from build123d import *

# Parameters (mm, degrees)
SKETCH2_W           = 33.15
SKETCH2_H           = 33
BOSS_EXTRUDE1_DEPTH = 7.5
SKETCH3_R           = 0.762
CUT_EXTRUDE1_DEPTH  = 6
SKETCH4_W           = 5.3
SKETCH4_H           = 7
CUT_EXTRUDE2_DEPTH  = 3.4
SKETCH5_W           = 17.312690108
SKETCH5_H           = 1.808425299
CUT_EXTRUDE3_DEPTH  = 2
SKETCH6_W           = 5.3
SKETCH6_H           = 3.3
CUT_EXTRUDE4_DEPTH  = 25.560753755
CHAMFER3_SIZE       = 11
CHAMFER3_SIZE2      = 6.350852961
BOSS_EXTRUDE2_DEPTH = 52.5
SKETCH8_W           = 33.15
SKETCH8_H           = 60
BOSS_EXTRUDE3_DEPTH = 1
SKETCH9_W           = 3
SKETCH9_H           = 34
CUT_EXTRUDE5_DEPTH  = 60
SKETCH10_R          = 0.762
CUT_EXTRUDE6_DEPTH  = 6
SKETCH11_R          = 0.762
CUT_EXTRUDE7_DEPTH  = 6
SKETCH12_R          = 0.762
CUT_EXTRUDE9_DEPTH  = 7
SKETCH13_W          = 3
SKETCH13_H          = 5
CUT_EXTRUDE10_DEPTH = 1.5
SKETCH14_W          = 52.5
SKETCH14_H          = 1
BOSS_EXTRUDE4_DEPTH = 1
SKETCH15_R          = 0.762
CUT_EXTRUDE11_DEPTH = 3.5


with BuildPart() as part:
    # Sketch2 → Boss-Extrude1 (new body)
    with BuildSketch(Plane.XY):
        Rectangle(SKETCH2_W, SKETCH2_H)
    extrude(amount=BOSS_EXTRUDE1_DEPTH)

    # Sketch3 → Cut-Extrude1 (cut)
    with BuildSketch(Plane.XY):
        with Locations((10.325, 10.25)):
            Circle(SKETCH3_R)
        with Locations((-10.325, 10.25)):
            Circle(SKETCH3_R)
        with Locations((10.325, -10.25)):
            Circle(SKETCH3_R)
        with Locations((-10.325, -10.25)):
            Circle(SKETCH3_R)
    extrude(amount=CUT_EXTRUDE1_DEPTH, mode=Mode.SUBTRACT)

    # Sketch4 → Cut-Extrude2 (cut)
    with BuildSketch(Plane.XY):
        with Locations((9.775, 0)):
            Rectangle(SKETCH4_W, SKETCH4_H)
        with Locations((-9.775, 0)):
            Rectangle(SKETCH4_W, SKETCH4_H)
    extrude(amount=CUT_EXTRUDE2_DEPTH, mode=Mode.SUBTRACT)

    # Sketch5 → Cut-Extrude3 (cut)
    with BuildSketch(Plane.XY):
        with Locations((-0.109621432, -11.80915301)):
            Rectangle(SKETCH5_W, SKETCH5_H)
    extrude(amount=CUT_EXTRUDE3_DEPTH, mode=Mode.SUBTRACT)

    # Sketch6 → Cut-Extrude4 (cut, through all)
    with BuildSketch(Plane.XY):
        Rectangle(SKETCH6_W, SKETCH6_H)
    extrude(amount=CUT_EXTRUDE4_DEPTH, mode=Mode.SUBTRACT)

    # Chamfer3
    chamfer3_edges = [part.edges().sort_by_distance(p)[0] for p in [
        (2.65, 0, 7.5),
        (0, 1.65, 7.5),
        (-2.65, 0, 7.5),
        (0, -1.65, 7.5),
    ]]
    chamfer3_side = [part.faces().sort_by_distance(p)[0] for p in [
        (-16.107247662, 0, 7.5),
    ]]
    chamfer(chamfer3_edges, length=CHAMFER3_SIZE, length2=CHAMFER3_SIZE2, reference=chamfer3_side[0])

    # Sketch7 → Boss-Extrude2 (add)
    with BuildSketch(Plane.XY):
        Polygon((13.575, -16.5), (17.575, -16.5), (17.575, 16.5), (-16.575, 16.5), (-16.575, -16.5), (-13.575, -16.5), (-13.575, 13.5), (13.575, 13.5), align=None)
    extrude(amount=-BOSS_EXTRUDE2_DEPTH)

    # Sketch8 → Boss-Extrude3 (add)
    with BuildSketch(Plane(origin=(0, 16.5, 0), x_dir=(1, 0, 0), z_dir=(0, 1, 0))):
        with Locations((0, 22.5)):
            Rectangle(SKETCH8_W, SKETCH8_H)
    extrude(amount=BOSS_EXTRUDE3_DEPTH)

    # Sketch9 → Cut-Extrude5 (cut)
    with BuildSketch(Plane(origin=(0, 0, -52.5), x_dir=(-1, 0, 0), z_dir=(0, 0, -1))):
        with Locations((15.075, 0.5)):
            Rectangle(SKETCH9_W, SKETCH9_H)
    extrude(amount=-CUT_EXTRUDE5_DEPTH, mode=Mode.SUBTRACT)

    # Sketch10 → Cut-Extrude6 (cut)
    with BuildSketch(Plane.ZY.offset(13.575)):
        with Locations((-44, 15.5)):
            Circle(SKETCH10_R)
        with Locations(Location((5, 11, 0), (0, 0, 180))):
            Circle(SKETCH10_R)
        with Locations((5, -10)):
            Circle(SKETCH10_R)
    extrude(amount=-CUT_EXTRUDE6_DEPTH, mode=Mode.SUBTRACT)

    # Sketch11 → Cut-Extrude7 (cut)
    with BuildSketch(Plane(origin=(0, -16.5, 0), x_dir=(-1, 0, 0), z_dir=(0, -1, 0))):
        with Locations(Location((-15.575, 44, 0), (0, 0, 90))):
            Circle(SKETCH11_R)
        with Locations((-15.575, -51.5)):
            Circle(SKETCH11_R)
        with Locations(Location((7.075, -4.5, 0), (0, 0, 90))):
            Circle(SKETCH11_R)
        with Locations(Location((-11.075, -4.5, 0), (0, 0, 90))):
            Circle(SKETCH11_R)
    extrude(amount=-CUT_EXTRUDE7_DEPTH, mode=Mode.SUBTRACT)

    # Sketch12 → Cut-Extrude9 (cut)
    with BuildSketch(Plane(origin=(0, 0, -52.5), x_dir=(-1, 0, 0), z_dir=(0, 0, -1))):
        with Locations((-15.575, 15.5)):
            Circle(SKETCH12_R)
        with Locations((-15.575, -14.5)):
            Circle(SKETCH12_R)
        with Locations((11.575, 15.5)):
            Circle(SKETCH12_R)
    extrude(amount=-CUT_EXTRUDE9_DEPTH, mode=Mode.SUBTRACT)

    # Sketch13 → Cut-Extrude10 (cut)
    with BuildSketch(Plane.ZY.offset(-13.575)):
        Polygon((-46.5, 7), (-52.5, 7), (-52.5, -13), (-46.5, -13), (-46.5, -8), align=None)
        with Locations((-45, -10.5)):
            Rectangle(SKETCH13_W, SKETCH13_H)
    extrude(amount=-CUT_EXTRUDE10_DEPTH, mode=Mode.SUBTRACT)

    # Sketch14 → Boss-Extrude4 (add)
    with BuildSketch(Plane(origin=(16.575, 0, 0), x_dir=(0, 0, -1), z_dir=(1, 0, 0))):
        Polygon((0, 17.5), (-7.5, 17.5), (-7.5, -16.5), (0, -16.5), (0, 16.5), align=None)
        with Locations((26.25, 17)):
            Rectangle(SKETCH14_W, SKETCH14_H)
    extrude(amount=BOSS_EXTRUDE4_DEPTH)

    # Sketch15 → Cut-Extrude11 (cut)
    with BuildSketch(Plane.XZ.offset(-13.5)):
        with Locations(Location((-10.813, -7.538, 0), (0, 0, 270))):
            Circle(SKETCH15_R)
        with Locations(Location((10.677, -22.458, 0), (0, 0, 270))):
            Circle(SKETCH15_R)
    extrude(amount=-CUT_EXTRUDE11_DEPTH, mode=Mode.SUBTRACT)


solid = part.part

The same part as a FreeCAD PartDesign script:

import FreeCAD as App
import Part
import Sketcher
from FreeCAD import Vector


def edges_at(feature, points):
    """Names of the edges that pass closest to the given points."""
    edges = feature.Shape.Edges
    near = lambda p: min(range(len(edges)), key=lambda i: edges[i].distToShape(Part.Vertex(*p))[0])
    return sorted({f"Edge{near(p) + 1}" for p in points})


def add_polygon(sketch, points):
    """Adds a closed chain of lines whose ends are joined by coincident constraints."""
    first, n = sketch.GeometryCount, len(points)
    for a, b in zip(points, points[1:] + points[:1]):
        sketch.addGeometry(Part.LineSegment(App.Vector(*a, 0), App.Vector(*b, 0)), False)
    for i in range(n):
        sketch.addConstraint(Sketcher.Constraint("Coincident", first + i, 2, first + (i + 1) % n, 1))

doc = App.newDocument("Part")
params = doc.addObject("Spreadsheet::Sheet", "Params")
for row, (alias, value) in enumerate([
    ("sketch1_height", "33 mm"),
    ("sketch1_width", "33.15 mm"),
    ("pad1_length", "7.5 mm"),
    ("pocket1_length", "6 mm"),
    ("sketch3_height", "7 mm"),
    ("sketch3_width", "5.3 mm"),
    ("pocket2_length", "3.4 mm"),
    ("pocket3_length", "2 mm"),
    ("sketch5_width", "5.3 mm"),
    ("sketch5_height", "3.3 mm"),
    ("chamfer_size", "11 mm"),
    ("chamfer_size2", "6.350853 mm"),
    ("sketch6_width", "4 mm"),
    ("sketch6_width2", "3 mm"),
    ("sketch6_height", "33 mm"),
    ("sketch6_height2", "30 mm"),
    ("sketch6_width3", "34.15 mm"),
    ("pad2_length", "52.5 mm"),
    ("sketch7_height", "60 mm"),
    ("sketch7_width", "33.15 mm"),
    ("pad3_length", "1 mm"),
    ("sketch8_width", "3 mm"),
    ("sketch8_height", "34 mm"),
    ("pocket5_length", "60 mm"),
    ("pocket6_length", "6 mm"),
    ("pocket7_length", "6 mm"),
    ("pocket8_length", "7 mm"),
    ("sketch12_width", "20 mm"),
    ("sketch12_width2", "5 mm"),
    ("sketch12_height", "6 mm"),
    ("sketch12_height2", "9 mm"),
    ("pocket9_length", "1.5 mm"),
    ("sketch13_width", "34 mm"),
    ("sketch13_width2", "33 mm"),
    ("sketch13_height", "60 mm"),
    ("sketch13_height2", "7.5 mm"),
    ("pad4_length", "1 mm"),
    ("pocket10_length", "3.5 mm"),
], start=1):
    params.set(f"A{row}", alias)
    params.set(f"B{row}", "=" + value)
    params.setAlias(f"B{row}", alias)

body = doc.addObject("PartDesign::Body", "Body")

# Sketch on XY plane
sketch1 = doc.addObject("Sketcher::SketchObject", "Sketch")
body.addObject(sketch1)
sketch1.AttachmentSupport = (doc.XY_Plane, [""])
sketch1.MapMode = "FlatFace"
add_polygon(sketch1, [(-17, 16), (-17, -16), (17, -16), (17, 16)])  # lines 0-3
sketch1.addConstraint([
    Sketcher.Constraint("Vertical", 0),
    Sketcher.Constraint("Horizontal", 1),
    Sketcher.Constraint("Vertical", 2),
    Sketcher.Constraint("Horizontal", 3),
    Sketcher.Constraint("Symmetric", 0, 2, 2, 2, -1, 1),
    Sketcher.Constraint("DistanceY", 0, 2, 0, 1, 33.0),
    Sketcher.Constraint("DistanceX", 1, 1, 1, 2, 33.15),
])
sketch1.setExpression("Constraints[9]", "Params.sketch1_height")
sketch1.setExpression("Constraints[10]", "Params.sketch1_width")
pad1 = doc.addObject("PartDesign::Pad", "Pad")
body.addObject(pad1)
pad1.Profile = sketch1
pad1.setExpression("Length", "Params.pad1_length")

# Sketch on XY plane
sketch2 = doc.addObject("Sketcher::SketchObject", "Sketch001")
body.addObject(sketch2)
sketch2.AttachmentSupport = (doc.XY_Plane, [""])
sketch2.MapMode = "FlatFace"
sketch2.addGeometry([
    Part.Circle(Vector(10.3, 10.2, 0), Vector(0, 0, 1), 0.8),
    Part.Circle(Vector(-10.3, 10.2, 0), Vector(0, 0, 1), 0.8),
    Part.Circle(Vector(10.3, -10.2, 0), Vector(0, 0, 1), 0.8),
    Part.Circle(Vector(-10.3, -10.2, 0), Vector(0, 0, 1), 0.8),
], False)
sketch2.addConstraint([
    Sketcher.Constraint("Equal", 0, 1),
    Sketcher.Constraint("Equal", 1, 2),
    Sketcher.Constraint("Equal", 2, 3),
    Sketcher.Constraint("Symmetric", 1, 3, 2, 3, -1, 1),
    Sketcher.Constraint("Symmetric", 0, 3, 3, 3, -1, 1),
    Sketcher.Constraint("Symmetric", 0, 3, 1, 3, -2),
    Sketcher.Constraint("Diameter", 0, 1.524),
    Sketcher.Constraint("DistanceY", 2, 3, 0, 3, 20.5),
    Sketcher.Constraint("DistanceX", 1, 3, 0, 3, 20.65),
])
pocket1 = doc.addObject("PartDesign::Pocket", "Pocket")
body.addObject(pocket1)
pocket1.Profile = sketch2
pocket1.setExpression("Length", "Params.pocket1_length")
pocket1.Reversed = True

# Sketch on XY plane
sketch3 = doc.addObject("Sketcher::SketchObject", "Sketch002")
body.addObject(sketch3)
sketch3.AttachmentSupport = (doc.XY_Plane, [""])
sketch3.MapMode = "FlatFace"
add_polygon(sketch3, [(7, 4), (7, -4), (12, -4), (12, 4)])  # lines 0-3
add_polygon(sketch3, [(-12, 4), (-12, -4), (-7, -4), (-7, 4)])  # lines 4-7
sketch3.addConstraint([
    Sketcher.Constraint("Vertical", 0),
    Sketcher.Constraint("Horizontal", 1),
    Sketcher.Constraint("Vertical", 2),
    Sketcher.Constraint("Horizontal", 3),
    Sketcher.Constraint("Vertical", 4),
    Sketcher.Constraint("Horizontal", 5),
    Sketcher.Constraint("Vertical", 6),
    Sketcher.Constraint("Horizontal", 7),
    Sketcher.Constraint("Symmetric", 2, 2, 4, 2, -1, 1),
    Sketcher.Constraint("Symmetric", 0, 2, 6, 2, -1, 1),
    Sketcher.Constraint("Horizontal", 1, 2, 4, 2),
    Sketcher.Constraint("DistanceY", 0, 2, 0, 1, 7.0),
    Sketcher.Constraint("DistanceX", 1, 1, 1, 2, 5.3),
    Sketcher.Constraint("DistanceX", 4, 2, 0, 2, 19.55),
])
sketch3.setExpression("Constraints[19]", "Params.sketch3_height")
sketch3.setExpression("Constraints[20]", "Params.sketch3_width")
pocket2 = doc.addObject("PartDesign::Pocket", "Pocket001")
body.addObject(pocket2)
pocket2.Profile = sketch3
pocket2.setExpression("Length", "Params.pocket2_length")
pocket2.Reversed = True

# Sketch on XY plane
sketch4 = doc.addObject("Sketcher::SketchObject", "Sketch003")
body.addObject(sketch4)
sketch4.AttachmentSupport = (doc.XY_Plane, [""])
sketch4.MapMode = "FlatFace"
add_polygon(sketch4, [(-8.8, -10.9), (-8.8, -12.7), (8.5, -12.7), (8.5, -10.9)])  # lines 0-3
sketch4.addConstraint([
    Sketcher.Constraint("Vertical", 0),
    Sketcher.Constraint("Horizontal", 1),
    Sketcher.Constraint("Vertical", 2),
    Sketcher.Constraint("Horizontal", 3),
    Sketcher.Constraint("DistanceX", 1, 1, 1, 2, 17.31269),
    Sketcher.Constraint("DistanceY", 0, 2, 0, 1, 1.808425),
    Sketcher.Constraint("DistanceY", 2, 2, -1, 1, 10.90494),
    Sketcher.Constraint("DistanceX", 0, 2, -1, 1, 8.765966),
])
pocket3 = doc.addObject("PartDesign::Pocket", "Pocket002")
body.addObject(pocket3)
pocket3.Profile = sketch4
pocket3.setExpression("Length", "Params.pocket3_length")
pocket3.Reversed = True

# Sketch on XY plane
sketch5 = doc.addObject("Sketcher::SketchObject", "Sketch004")
body.addObject(sketch5)
sketch5.AttachmentSupport = (doc.XY_Plane, [""])
sketch5.MapMode = "FlatFace"
add_polygon(sketch5, [(-2.6, 1.6), (-2.6, -1.6), (2.6, -1.6), (2.6, 1.6)])  # lines 0-3
sketch5.addConstraint([
    Sketcher.Constraint("Vertical", 0),
    Sketcher.Constraint("Horizontal", 1),
    Sketcher.Constraint("Vertical", 2),
    Sketcher.Constraint("Horizontal", 3),
    Sketcher.Constraint("Symmetric", 0, 2, 2, 2, -1, 1),
    Sketcher.Constraint("DistanceX", 1, 1, 1, 2, 5.3),
    Sketcher.Constraint("DistanceY", 0, 2, 0, 1, 3.3),
])
sketch5.setExpression("Constraints[9]", "Params.sketch5_width")
sketch5.setExpression("Constraints[10]", "Params.sketch5_height")
pocket4 = doc.addObject("PartDesign::Pocket", "Pocket003")
body.addObject(pocket4)
pocket4.Profile = sketch5
pocket4.Type = "ThroughAll"
pocket4.Reversed = True
doc.recompute()

chamfer = doc.addObject("PartDesign::Chamfer", "Chamfer")
body.addObject(chamfer)
chamfer.Base = (pocket4, edges_at(pocket4, [
    (2.65, 0, 7.5),
    (0, 1.65, 7.5),
    (-2.65, 0, 7.5),
    (0, -1.65, 7.5),
]))
chamfer.ChamferType = "Two distances"
chamfer.setExpression("Size", "Params.chamfer_size")
chamfer.setExpression("Size2", "Params.chamfer_size2")

# Sketch on XY plane
sketch6 = doc.addObject("Sketcher::SketchObject", "Sketch005")
body.addObject(sketch6)
sketch6.AttachmentSupport = (doc.XY_Plane, [""])
sketch6.MapMode = "FlatFace"
add_polygon(sketch6, [(13.6, -16.5), (17.6, -16.5), (17.6, 16.5), (-16.6, 16.5), (-16.6, -16.5), (-13.6, -16.5), (-13.6, 13.5), (13.6, 13.5)])  # lines 0-7
sketch6.addConstraint([
    Sketcher.Constraint("Horizontal", 0),
    Sketcher.Constraint("Vertical", 1),
    Sketcher.Constraint("Horizontal", 2),
    Sketcher.Constraint("Vertical", 3),
    Sketcher.Constraint("Horizontal", 4),
    Sketcher.Constraint("Vertical", 5),
    Sketcher.Constraint("Horizontal", 6),
    Sketcher.Constraint("Vertical", 7),
    Sketcher.Constraint("Symmetric", 4, 2, 7, 2, -2),
    Sketcher.Constraint("DistanceX", 0, 1, 0, 2, 4.0),
    Sketcher.Constraint("DistanceX", 4, 1, 4, 2, 3.0),
    Sketcher.Constraint("DistanceY", 1, 1, 1, 2, 33.0),
    Sketcher.Constraint("DistanceY", 5, 1, 5, 2, 30.0),
    Sketcher.Constraint("DistanceX", 2, 2, 2, 1, 34.15),
    Sketcher.Constraint("DistanceY", 0, 2, -1, 1, 16.5),
])
sketch6.setExpression("Constraints[17]", "Params.sketch6_width")
sketch6.setExpression("Constraints[18]", "Params.sketch6_width2")
sketch6.setExpression("Constraints[19]", "Params.sketch6_height")
sketch6.setExpression("Constraints[20]", "Params.sketch6_height2")
sketch6.setExpression("Constraints[21]", "Params.sketch6_width3")
pad2 = doc.addObject("PartDesign::Pad", "Pad001")
body.addObject(pad2)
pad2.Profile = sketch6
pad2.setExpression("Length", "Params.pad2_length")
pad2.Reversed = True

# Sketch on XZ plane
sketch7 = doc.addObject("Sketcher::SketchObject", "Sketch006")
body.addObject(sketch7)
sketch7.AttachmentSupport = (doc.XZ_Plane, [""])
sketch7.MapMode = "FlatFace"
sketch7.AttachmentOffset = App.Placement(Vector(0, 0, -16.5), App.Rotation())
add_polygon(sketch7, [(-17, -52), (-17, 8), (17, 8), (17, -52)])  # lines 0-3
sketch7.addConstraint([
    Sketcher.Constraint("Vertical", 0),
    Sketcher.Constraint("Horizontal", 1),
    Sketcher.Constraint("Vertical", 2),
    Sketcher.Constraint("Horizontal", 3),
    Sketcher.Constraint("DistanceY", 0, 1, 0, 2, 60.0),
    Sketcher.Constraint("DistanceX", 1, 1, 1, 2, 33.15),
    Sketcher.Constraint("DistanceY", -1, 1, 0, 2, 7.5),
    Sketcher.Constraint("DistanceX", 0, 2, -1, 1, 16.575),
])
sketch7.setExpression("Constraints[8]", "Params.sketch7_height")
sketch7.setExpression("Constraints[9]", "Params.sketch7_width")
pad3 = doc.addObject("PartDesign::Pad", "Pad002")
body.addObject(pad3)
pad3.Profile = sketch7
pad3.setExpression("Length", "Params.pad3_length")
pad3.Reversed = True

# Sketch on XY plane
sketch8 = doc.addObject("Sketcher::SketchObject", "Sketch007")
body.addObject(sketch8)
sketch8.AttachmentSupport = (doc.XY_Plane, [""])
sketch8.MapMode = "FlatFace"
sketch8.AttachmentOffset = App.Placement(Vector(0, 0, -52.5), App.Rotation())
add_polygon(sketch8, [(-13.6, 17.5), (-13.6, -16.5), (-16.6, -16.5), (-16.6, 17.5)])  # lines 0-3
sketch8.addConstraint([
    Sketcher.Constraint("Vertical", 0),
    Sketcher.Constraint("Horizontal", 1),
    Sketcher.Constraint("Vertical", 2),
    Sketcher.Constraint("Horizontal", 3),
    Sketcher.Constraint("DistanceX", 1, 2, 1, 1, 3.0),
    Sketcher.Constraint("DistanceY", 0, 2, 0, 1, 34.0),
    Sketcher.Constraint("DistanceY", 0, 2, -1, 1, 16.5),
    Sketcher.Constraint("DistanceX", 0, 2, -1, 1, 13.575),
])
sketch8.setExpression("Constraints[8]", "Params.sketch8_width")
sketch8.setExpression("Constraints[9]", "Params.sketch8_height")
pocket5 = doc.addObject("PartDesign::Pocket", "Pocket004")
body.addObject(pocket5)
pocket5.Profile = sketch8
pocket5.setExpression("Length", "Params.pocket5_length")
pocket5.Reversed = True

# Sketch on YZ plane
sketch9 = doc.addObject("Sketcher::SketchObject", "Sketch008")
body.addObject(sketch9)
sketch9.AttachmentSupport = (doc.YZ_Plane, [""])
sketch9.MapMode = "FlatFace"
sketch9.AttachmentOffset = App.Placement(Vector(0, 0, -13.575), App.Rotation())
sketch9.addGeometry([
    Part.Circle(Vector(15.5, -44, 0), Vector(0, 0, 1), 0.8),
    Part.Circle(Vector(11, 5, 0), Vector(0, 0, 1), 0.8),
    Part.Circle(Vector(-10, 5, 0), Vector(0, 0, 1), 0.8),
], False)
sketch9.addConstraint([
    Sketcher.Constraint("Equal", 0, 1),
    Sketcher.Constraint("Equal", 1, 2),
    Sketcher.Constraint("Horizontal", 1, 3, 2, 3),
    Sketcher.Constraint("Diameter", 0, 1.524),
    Sketcher.Constraint("DistanceY", 0, 3, -1, 1, 44.0),
    Sketcher.Constraint("DistanceX", -1, 1, 1, 3, 11.0),
    Sketcher.Constraint("DistanceY", -1, 1, 1, 3, 5.0),
    Sketcher.Constraint("DistanceX", 2, 3, -1, 1, 10.0),
    Sketcher.Constraint("DistanceX", -1, 1, 0, 3, 15.5),
])
pocket6 = doc.addObject("PartDesign::Pocket", "Pocket005")
body.addObject(pocket6)
pocket6.Profile = sketch9
pocket6.setExpression("Length", "Params.pocket6_length")
pocket6.Reversed = True

# Sketch on XZ plane
sketch10 = doc.addObject("Sketcher::SketchObject", "Sketch009")
body.addObject(sketch10)
sketch10.AttachmentSupport = (doc.XZ_Plane, [""])
sketch10.MapMode = "FlatFace"
sketch10.AttachmentOffset = App.Placement(Vector(0, 0, 16.5), App.Rotation())
sketch10.addGeometry([
    Part.Circle(Vector(15.6, -44, 0), Vector(0, 0, 1), 0.8),
    Part.Circle(Vector(15.6, 51.5, 0), Vector(0, 0, 1), 0.8),
    Part.Circle(Vector(-7.1, 4.5, 0), Vector(0, 0, 1), 0.8),
    Part.Circle(Vector(11.1, 4.5, 0), Vector(0, 0, 1), 0.8),
], False)
sketch10.addConstraint([
    Sketcher.Constraint("Equal", 0, 1),
    Sketcher.Constraint("Equal", 1, 2),
    Sketcher.Constraint("Equal", 2, 3),
    Sketcher.Constraint("Horizontal", 2, 3, 3, 3),
    Sketcher.Constraint("Vertical", 0, 3, 1, 3),
    Sketcher.Constraint("Diameter", 0, 1.524),
    Sketcher.Constraint("DistanceY", 0, 3, -1, 1, 44.0),
    Sketcher.Constraint("DistanceY", 2, 3, 1, 3, 47.0),
    Sketcher.Constraint("DistanceY", -1, 1, 1, 3, 51.5),
    Sketcher.Constraint("DistanceX", 3, 3, 1, 3, 4.5),
    Sketcher.Constraint("DistanceX", 2, 3, 1, 3, 22.65),
    Sketcher.Constraint("DistanceX", -1, 1, 0, 3, 15.575),
])
pocket7 = doc.addObject("PartDesign::Pocket", "Pocket006")
body.addObject(pocket7)
pocket7.Profile = sketch10
pocket7.setExpression("Length", "Params.pocket7_length")

# Sketch on XY plane
sketch11 = doc.addObject("Sketcher::SketchObject", "Sketch010")
body.addObject(sketch11)
sketch11.AttachmentSupport = (doc.XY_Plane, [""])
sketch11.MapMode = "FlatFace"
sketch11.AttachmentOffset = App.Placement(Vector(0, 0, -52.5), App.Rotation())
sketch11.addGeometry([
    Part.Circle(Vector(15.6, 15.5, 0), Vector(0, 0, 1), 0.8),
    Part.Circle(Vector(15.6, -14.5, 0), Vector(0, 0, 1), 0.8),
    Part.Circle(Vector(-11.6, 15.5, 0), Vector(0, 0, 1), 0.8),
], False)
sketch11.addConstraint([
    Sketcher.Constraint("Equal", 0, 1),
    Sketcher.Constraint("Equal", 1, 2),
    Sketcher.Constraint("Horizontal", 0, 3, 2, 3),
    Sketcher.Constraint("Vertical", 0, 3, 1, 3),
    Sketcher.Constraint("Diameter", 0, 1.524),
    Sketcher.Constraint("DistanceY", 1, 3, 0, 3, 30.0),
    Sketcher.Constraint("DistanceY", -1, 1, 0, 3, 15.5),
    Sketcher.Constraint("DistanceX", 2, 3, 0, 3, 27.15),
    Sketcher.Constraint("DistanceX", -1, 1, 0, 3, 15.575),
])
pocket8 = doc.addObject("PartDesign::Pocket", "Pocket007")
body.addObject(pocket8)
pocket8.Profile = sketch11
pocket8.setExpression("Length", "Params.pocket8_length")
pocket8.Reversed = True

# Sketch on YZ plane
sketch12 = doc.addObject("Sketcher::SketchObject", "Sketch011")
body.addObject(sketch12)
sketch12.AttachmentSupport = (doc.YZ_Plane, [""])
sketch12.MapMode = "FlatFace"
sketch12.AttachmentOffset = App.Placement(Vector(0, 0, 13.575), App.Rotation())
add_polygon(sketch12, [(7, -46.5), (7, -52.5), (-13, -52.5), (-13, -43.5), (-8, -43.5), (-8, -46.5)])  # lines 0-5
sketch12.addConstraint([
    Sketcher.Constraint("Vertical", 0),
    Sketcher.Constraint("Horizontal", 1),
    Sketcher.Constraint("Vertical", 2),
    Sketcher.Constraint("Horizontal", 3),
    Sketcher.Constraint("Vertical", 4),
    Sketcher.Constraint("Horizontal", 5),
    Sketcher.Constraint("DistanceX", 1, 2, 1, 1, 20.0),
    Sketcher.Constraint("DistanceX", 3, 1, 3, 2, 5.0),
    Sketcher.Constraint("DistanceY", 0, 2, 0, 1, 6.0),
    Sketcher.Constraint("DistanceY", 2, 1, 2, 2, 9.0),
    Sketcher.Constraint("DistanceX", -1, 1, 0, 2, 7.0),
    Sketcher.Constraint("DistanceY", 0, 2, -1, 1, 52.5),
])
sketch12.setExpression("Constraints[12]", "Params.sketch12_width")
sketch12.setExpression("Constraints[13]", "Params.sketch12_width2")
sketch12.setExpression("Constraints[14]", "Params.sketch12_height")
sketch12.setExpression("Constraints[15]", "Params.sketch12_height2")
pocket9 = doc.addObject("PartDesign::Pocket", "Pocket008")
body.addObject(pocket9)
pocket9.Profile = sketch12
pocket9.setExpression("Length", "Params.pocket9_length")
pocket9.Reversed = True

# Sketch on YZ plane
sketch13 = doc.addObject("Sketcher::SketchObject", "Sketch012")
body.addObject(sketch13)
sketch13.AttachmentSupport = (doc.YZ_Plane, [""])
sketch13.MapMode = "FlatFace"
sketch13.AttachmentOffset = App.Placement(Vector(0, 0, 16.575), App.Rotation())
add_polygon(sketch13, [(17.5, 7.5), (-16.5, 7.5), (-16.5, 0), (16.5, 0), (16.5, -52.5), (17.5, -52.5)])  # lines 0-5
sketch13.addConstraint([
    Sketcher.Constraint("Horizontal", 0),
    Sketcher.Constraint("Vertical", 1),
    Sketcher.Constraint("Horizontal", 2),
    Sketcher.Constraint("Vertical", 3),
    Sketcher.Constraint("Horizontal", 4),
    Sketcher.Constraint("Vertical", 5),
    Sketcher.Constraint("Symmetric", 1, 2, 2, 2, -1, 1),
    Sketcher.Constraint("DistanceX", 0, 2, 0, 1, 34.0),
    Sketcher.Constraint("DistanceX", 2, 1, 2, 2, 33.0),
    Sketcher.Constraint("DistanceY", 5, 1, 5, 2, 60.0),
    Sketcher.Constraint("DistanceY", 1, 2, 1, 1, 7.5),
])
sketch13.setExpression("Constraints[13]", "Params.sketch13_width")
sketch13.setExpression("Constraints[14]", "Params.sketch13_width2")
sketch13.setExpression("Constraints[15]", "Params.sketch13_height")
sketch13.setExpression("Constraints[16]", "Params.sketch13_height2")
pad4 = doc.addObject("PartDesign::Pad", "Pad003")
body.addObject(pad4)
pad4.Profile = sketch13
pad4.setExpression("Length", "Params.pad4_length")

# Sketch on XZ plane
sketch14 = doc.addObject("Sketcher::SketchObject", "Sketch013")
body.addObject(sketch14)
sketch14.AttachmentSupport = (doc.XZ_Plane, [""])
sketch14.MapMode = "FlatFace"
sketch14.AttachmentOffset = App.Placement(Vector(0, 0, -13.5), App.Rotation())
sketch14.addGeometry([
    Part.Circle(Vector(-10.8, -7.5, 0), Vector(0, 0, 1), 0.8),
    Part.Circle(Vector(10.7, -22.5, 0), Vector(0, 0, 1), 0.8),
], False)
sketch14.addConstraint([
    Sketcher.Constraint("Equal", 0, 1),
    Sketcher.Constraint("Diameter", 0, 1.524),
    Sketcher.Constraint("DistanceX", 0, 3, 1, 3, 21.49),
    Sketcher.Constraint("DistanceY", 1, 3, 0, 3, 14.92),
    Sketcher.Constraint("DistanceX", 0, 3, -1, 1, 10.813),
    Sketcher.Constraint("DistanceY", 0, 3, -1, 1, 7.538),
])
pocket10 = doc.addObject("PartDesign::Pocket", "Pocket009")
body.addObject(pocket10)
pocket10.Profile = sketch14
pocket10.setExpression("Length", "Params.pocket10_length")

doc.recompute()
